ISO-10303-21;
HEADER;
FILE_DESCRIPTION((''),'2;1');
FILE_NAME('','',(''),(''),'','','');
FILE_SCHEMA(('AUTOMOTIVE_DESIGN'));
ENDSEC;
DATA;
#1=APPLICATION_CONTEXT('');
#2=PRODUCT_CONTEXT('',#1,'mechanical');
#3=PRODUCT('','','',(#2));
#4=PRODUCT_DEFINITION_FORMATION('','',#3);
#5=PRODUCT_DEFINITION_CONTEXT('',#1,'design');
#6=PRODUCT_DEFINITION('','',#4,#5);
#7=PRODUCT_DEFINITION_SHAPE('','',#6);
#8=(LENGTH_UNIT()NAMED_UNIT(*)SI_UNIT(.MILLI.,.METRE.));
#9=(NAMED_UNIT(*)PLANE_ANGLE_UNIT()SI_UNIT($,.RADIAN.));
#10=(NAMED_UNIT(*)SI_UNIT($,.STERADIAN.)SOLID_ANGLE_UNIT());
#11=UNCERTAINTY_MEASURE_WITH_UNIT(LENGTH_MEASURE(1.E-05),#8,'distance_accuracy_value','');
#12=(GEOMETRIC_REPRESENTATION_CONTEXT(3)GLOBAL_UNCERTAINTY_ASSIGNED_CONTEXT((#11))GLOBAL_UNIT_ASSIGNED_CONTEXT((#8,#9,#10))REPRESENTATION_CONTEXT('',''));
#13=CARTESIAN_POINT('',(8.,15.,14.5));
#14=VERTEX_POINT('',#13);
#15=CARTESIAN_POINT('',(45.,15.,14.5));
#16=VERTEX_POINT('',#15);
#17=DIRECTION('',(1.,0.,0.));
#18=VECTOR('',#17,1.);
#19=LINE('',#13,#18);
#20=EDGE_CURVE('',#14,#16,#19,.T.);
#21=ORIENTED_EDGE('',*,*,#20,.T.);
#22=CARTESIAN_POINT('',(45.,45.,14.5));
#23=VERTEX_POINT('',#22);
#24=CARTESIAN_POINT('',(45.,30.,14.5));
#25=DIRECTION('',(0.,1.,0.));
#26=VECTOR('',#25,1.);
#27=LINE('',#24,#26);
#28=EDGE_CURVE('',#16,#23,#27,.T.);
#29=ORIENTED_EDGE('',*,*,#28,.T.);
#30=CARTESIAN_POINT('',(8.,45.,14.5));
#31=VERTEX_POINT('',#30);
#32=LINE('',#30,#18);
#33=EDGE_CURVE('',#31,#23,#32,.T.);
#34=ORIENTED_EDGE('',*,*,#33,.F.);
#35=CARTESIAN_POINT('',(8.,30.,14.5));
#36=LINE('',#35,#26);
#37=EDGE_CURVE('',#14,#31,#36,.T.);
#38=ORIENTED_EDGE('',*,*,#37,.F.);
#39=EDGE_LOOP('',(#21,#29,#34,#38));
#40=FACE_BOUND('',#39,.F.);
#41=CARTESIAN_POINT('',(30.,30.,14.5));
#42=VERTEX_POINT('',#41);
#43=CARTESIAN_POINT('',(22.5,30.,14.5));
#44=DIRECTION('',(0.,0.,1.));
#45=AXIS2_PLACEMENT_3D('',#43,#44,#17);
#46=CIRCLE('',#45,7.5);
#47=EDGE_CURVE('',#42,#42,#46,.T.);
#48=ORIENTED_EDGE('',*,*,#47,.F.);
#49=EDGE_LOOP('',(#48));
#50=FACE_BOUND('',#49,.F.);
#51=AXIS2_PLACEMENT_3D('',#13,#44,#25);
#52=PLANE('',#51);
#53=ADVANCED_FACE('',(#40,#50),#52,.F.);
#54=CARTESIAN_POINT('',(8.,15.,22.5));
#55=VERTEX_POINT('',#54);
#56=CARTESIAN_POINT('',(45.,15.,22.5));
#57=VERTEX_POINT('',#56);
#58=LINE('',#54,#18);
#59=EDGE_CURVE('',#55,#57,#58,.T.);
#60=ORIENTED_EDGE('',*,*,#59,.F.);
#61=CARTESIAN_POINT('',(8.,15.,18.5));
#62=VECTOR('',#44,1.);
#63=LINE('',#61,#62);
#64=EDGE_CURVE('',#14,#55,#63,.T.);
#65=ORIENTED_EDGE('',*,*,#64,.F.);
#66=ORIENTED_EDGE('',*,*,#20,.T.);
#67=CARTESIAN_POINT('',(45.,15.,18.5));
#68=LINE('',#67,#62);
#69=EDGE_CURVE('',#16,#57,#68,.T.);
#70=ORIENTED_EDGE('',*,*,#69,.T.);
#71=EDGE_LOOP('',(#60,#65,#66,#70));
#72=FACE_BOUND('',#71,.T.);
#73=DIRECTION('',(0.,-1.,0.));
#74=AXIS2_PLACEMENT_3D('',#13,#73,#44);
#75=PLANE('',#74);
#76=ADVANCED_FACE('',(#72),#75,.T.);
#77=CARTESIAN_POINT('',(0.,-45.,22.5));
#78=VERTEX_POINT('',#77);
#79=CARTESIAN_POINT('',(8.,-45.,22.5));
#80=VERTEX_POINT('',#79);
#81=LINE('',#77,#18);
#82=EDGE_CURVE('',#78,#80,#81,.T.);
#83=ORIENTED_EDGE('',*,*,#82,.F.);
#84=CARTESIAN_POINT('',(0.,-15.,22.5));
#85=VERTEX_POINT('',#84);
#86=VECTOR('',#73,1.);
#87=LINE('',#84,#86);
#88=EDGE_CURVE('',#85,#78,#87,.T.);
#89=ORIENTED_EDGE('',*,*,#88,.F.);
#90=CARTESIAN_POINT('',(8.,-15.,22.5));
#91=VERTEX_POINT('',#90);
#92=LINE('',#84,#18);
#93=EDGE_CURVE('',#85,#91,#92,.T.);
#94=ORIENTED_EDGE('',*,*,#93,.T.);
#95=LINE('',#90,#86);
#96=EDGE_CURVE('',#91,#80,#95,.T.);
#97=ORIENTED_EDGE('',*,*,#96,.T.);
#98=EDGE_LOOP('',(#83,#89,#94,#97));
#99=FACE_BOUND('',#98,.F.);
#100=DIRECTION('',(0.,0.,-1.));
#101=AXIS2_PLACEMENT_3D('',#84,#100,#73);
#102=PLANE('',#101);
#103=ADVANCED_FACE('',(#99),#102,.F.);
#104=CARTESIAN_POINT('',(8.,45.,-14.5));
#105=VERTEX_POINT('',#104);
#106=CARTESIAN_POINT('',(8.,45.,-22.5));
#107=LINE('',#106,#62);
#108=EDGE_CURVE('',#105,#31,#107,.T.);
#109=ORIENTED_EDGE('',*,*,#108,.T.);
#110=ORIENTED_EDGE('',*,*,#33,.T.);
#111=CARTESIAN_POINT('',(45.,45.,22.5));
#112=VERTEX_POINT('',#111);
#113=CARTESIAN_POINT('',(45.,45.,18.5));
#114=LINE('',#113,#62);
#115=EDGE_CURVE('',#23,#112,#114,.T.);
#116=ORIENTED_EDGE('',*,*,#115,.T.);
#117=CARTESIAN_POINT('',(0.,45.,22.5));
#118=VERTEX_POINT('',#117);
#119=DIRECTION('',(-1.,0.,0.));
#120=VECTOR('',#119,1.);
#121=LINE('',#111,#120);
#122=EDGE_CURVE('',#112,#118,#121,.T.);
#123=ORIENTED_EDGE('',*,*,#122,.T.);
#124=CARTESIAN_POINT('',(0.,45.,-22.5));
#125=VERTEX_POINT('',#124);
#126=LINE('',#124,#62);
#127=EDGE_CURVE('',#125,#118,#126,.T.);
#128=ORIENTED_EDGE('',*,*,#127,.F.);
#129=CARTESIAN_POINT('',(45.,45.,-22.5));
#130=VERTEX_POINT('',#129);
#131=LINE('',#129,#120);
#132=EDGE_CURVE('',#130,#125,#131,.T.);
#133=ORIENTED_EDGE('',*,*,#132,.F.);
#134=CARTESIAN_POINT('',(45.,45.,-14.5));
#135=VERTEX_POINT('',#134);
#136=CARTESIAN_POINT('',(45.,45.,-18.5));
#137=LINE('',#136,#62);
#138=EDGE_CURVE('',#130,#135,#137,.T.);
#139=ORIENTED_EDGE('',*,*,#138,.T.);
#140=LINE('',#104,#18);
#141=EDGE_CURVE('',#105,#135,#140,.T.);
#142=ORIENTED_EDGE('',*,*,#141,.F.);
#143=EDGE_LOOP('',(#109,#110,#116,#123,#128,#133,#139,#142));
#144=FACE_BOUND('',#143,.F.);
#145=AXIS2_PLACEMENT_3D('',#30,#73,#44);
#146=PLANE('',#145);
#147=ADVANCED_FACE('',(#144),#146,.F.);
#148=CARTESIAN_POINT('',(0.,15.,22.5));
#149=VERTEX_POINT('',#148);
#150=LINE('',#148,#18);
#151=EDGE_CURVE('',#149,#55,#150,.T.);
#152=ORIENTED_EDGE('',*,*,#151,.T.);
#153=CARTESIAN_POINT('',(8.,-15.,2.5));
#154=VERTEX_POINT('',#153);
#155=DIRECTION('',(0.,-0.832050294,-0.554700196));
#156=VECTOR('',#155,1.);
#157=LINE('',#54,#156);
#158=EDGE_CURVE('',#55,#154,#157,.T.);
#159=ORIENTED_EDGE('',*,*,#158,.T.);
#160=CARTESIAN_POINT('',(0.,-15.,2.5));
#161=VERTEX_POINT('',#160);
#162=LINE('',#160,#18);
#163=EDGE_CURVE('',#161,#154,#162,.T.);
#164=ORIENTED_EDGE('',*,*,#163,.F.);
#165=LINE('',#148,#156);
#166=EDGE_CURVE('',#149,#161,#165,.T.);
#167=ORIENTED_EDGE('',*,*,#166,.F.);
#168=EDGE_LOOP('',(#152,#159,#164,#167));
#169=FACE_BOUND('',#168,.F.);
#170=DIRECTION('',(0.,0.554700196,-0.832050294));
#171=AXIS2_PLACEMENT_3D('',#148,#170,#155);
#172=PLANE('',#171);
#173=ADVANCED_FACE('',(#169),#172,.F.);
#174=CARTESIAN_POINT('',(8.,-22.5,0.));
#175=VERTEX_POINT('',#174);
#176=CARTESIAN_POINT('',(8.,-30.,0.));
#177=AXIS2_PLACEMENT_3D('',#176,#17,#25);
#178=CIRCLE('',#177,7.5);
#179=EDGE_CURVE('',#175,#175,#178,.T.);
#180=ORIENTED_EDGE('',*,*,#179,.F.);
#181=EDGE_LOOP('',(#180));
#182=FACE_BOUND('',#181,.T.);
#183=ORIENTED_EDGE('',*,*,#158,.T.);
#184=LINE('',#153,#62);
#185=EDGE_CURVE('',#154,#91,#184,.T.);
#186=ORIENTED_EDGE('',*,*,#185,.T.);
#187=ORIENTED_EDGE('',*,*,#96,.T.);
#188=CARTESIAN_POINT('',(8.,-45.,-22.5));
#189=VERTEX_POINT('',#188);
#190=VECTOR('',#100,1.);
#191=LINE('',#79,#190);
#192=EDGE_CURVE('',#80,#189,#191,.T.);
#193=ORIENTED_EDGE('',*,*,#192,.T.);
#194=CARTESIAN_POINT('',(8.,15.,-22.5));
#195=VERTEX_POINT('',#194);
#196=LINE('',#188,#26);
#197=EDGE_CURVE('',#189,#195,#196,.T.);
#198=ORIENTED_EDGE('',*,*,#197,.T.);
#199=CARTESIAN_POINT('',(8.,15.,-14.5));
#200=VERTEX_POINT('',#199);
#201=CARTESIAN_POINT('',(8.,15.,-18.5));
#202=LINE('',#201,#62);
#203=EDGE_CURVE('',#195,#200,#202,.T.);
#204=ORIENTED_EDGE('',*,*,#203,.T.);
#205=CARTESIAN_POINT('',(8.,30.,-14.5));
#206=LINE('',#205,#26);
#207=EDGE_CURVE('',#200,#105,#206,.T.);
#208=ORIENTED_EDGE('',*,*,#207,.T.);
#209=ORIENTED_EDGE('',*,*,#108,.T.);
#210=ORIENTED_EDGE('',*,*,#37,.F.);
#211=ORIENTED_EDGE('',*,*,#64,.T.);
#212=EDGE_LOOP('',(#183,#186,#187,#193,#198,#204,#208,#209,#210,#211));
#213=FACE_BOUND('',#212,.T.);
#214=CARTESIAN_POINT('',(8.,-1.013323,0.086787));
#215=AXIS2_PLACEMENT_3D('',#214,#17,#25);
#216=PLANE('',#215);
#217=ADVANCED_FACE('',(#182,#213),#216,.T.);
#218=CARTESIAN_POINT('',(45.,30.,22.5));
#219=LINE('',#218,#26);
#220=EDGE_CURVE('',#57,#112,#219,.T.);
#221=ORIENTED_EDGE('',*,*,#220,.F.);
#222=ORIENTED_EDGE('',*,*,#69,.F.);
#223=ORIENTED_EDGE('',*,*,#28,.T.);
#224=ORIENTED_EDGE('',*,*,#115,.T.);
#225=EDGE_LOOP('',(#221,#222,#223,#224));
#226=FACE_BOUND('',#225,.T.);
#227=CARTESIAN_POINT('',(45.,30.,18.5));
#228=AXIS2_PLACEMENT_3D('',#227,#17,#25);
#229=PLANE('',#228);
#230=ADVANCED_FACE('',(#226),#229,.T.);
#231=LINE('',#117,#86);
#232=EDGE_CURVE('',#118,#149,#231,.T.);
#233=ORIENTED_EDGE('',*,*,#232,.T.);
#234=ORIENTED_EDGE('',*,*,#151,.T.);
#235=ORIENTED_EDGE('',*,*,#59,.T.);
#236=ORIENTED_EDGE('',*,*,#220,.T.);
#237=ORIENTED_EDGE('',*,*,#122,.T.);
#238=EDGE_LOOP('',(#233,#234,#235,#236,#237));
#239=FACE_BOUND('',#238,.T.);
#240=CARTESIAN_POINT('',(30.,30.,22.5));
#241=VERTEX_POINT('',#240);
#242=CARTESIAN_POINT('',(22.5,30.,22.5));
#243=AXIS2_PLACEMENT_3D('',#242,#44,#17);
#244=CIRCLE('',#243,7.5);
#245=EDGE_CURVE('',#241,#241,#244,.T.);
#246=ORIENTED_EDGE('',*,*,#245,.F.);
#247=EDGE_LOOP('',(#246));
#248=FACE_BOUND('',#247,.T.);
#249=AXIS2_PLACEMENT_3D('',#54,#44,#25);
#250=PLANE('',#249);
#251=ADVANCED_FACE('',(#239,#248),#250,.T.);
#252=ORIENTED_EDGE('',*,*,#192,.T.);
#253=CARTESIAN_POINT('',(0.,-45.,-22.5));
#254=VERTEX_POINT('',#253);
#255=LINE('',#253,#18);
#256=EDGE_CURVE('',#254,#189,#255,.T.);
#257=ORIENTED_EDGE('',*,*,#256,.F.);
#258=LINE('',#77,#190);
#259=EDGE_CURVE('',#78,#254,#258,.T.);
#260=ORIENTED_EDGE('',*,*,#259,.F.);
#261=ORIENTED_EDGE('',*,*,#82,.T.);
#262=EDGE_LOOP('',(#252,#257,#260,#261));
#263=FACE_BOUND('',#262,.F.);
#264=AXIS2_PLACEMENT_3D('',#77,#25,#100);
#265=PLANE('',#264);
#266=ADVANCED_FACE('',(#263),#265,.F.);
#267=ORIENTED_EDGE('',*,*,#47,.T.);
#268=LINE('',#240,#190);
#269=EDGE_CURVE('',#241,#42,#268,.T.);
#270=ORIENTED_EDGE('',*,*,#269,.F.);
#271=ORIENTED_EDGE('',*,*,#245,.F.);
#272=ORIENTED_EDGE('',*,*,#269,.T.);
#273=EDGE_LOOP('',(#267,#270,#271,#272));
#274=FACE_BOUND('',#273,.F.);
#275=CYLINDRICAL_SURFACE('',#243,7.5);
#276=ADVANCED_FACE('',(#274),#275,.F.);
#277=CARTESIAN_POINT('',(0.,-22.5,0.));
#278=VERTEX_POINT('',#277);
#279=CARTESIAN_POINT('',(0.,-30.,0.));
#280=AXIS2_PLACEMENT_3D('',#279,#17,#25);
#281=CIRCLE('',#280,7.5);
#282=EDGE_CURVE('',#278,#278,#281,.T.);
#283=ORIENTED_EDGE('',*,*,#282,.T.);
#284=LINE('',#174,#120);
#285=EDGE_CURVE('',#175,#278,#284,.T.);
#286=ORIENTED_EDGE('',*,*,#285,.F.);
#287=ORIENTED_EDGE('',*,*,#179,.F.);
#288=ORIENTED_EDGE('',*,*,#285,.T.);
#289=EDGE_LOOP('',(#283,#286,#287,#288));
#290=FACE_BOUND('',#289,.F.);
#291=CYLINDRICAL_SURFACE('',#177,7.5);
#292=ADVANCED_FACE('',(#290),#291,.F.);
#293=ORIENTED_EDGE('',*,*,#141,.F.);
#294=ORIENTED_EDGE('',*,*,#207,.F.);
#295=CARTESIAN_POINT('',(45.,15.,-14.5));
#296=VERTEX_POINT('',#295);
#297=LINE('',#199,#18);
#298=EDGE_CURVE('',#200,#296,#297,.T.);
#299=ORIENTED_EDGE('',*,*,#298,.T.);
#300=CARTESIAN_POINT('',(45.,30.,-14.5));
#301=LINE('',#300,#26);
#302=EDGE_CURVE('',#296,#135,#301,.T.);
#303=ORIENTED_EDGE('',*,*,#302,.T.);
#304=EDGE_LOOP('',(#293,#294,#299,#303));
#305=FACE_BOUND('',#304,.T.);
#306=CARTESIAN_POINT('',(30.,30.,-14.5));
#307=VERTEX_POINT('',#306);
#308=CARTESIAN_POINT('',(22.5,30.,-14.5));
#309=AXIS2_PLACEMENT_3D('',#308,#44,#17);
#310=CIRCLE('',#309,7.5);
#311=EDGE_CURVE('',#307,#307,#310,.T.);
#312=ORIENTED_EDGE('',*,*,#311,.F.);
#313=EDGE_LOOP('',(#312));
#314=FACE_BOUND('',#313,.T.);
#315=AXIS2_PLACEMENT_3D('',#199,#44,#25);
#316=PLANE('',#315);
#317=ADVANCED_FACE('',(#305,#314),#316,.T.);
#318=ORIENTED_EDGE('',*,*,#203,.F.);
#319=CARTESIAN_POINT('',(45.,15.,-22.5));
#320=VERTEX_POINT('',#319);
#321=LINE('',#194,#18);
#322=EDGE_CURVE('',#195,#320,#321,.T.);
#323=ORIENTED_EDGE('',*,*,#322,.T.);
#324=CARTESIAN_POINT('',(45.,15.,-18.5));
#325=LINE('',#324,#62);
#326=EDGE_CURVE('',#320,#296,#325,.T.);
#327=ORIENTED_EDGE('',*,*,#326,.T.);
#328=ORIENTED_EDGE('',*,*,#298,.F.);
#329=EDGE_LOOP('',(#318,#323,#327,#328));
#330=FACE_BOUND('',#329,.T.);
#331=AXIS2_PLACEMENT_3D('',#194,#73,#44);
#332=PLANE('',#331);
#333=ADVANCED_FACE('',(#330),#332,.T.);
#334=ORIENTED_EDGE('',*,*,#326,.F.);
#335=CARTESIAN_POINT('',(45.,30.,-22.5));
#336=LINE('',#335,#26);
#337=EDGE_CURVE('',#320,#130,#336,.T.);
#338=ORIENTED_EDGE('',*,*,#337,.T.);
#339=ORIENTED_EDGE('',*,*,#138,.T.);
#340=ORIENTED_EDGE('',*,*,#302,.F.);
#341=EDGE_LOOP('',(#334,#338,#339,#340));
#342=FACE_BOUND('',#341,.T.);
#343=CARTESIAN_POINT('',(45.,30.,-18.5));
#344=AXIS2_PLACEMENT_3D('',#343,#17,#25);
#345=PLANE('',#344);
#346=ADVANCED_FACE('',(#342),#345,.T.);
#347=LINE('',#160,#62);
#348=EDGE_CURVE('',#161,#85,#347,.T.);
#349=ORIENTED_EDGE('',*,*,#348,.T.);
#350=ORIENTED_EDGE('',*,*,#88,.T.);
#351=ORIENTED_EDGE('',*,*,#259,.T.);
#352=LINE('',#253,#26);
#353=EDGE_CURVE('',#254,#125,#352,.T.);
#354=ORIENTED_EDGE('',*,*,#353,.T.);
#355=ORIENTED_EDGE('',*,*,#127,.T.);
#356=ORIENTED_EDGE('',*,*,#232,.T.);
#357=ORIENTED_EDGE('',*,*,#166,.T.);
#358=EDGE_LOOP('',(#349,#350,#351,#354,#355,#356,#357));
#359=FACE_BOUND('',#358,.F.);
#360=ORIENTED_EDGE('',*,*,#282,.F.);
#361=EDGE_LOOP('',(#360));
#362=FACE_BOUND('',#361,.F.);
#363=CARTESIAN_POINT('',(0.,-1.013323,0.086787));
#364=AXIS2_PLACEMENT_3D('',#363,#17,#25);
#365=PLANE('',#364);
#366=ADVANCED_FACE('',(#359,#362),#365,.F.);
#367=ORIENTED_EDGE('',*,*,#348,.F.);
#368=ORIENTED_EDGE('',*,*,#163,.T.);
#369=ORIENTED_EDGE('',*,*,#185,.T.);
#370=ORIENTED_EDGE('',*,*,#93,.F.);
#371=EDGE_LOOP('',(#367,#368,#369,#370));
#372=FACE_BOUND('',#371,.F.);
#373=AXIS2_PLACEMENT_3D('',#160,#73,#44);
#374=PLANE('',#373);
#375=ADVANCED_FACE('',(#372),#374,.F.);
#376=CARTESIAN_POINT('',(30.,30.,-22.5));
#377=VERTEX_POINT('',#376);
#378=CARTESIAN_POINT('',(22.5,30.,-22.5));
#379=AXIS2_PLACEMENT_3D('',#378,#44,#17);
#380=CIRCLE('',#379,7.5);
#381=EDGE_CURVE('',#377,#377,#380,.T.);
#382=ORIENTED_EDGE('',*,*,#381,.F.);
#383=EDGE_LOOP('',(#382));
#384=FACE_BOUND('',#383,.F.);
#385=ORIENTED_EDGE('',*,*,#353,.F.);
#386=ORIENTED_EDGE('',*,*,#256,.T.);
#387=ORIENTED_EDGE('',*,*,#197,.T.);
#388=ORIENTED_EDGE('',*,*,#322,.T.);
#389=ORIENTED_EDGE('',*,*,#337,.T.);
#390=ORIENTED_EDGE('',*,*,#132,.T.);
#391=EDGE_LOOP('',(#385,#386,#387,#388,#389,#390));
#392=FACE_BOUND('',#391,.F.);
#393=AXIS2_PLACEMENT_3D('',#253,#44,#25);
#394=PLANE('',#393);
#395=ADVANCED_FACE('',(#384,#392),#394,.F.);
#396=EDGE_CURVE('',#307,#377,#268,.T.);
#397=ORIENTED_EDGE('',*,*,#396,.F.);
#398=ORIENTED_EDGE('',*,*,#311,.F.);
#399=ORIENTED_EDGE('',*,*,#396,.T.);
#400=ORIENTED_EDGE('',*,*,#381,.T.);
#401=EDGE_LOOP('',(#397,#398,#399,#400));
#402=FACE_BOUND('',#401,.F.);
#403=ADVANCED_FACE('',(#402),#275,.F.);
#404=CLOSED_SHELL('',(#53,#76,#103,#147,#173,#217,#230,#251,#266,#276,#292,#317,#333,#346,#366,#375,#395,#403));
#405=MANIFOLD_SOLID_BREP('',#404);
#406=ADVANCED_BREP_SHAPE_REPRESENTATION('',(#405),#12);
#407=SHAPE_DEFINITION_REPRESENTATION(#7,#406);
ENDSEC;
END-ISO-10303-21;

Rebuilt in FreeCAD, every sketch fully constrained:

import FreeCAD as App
import Part
import Sketcher

V = App.Vector

doc = App.newDocument("Part")
body = doc.addObject("PartDesign::Body", "Body")

# Sketch on YZ plane
sketch1 = body.newObject("Sketcher::SketchObject", "Sketch")
sketch1.AttachmentSupport = (doc.getObject("YZ_Plane"), [""])
sketch1.MapMode = "FlatFace"
sketch1.addGeometry(Part.LineSegment(V(45, -22, 0), V(45, 22, 0)), False)
sketch1.addGeometry(Part.LineSegment(V(45, 22, 0), V(15, 22, 0)), False)
sketch1.addGeometry(Part.LineSegment(V(15, 22, 0), V(-15, 2, 0)), False)
sketch1.addGeometry(Part.LineSegment(V(-15, 2, 0), V(-15, 22, 0)), False)
sketch1.addGeometry(Part.LineSegment(V(-15, 22, 0), V(-45, 22, 0)), False)
sketch1.addGeometry(Part.LineSegment(V(-45, 22, 0), V(-45, -22, 0)), False)
sketch1.addGeometry(Part.LineSegment(V(-45, -22, 0), V(45, -22, 0)), False)
sketch1.addConstraint(Sketcher.Constraint("Coincident", 0, 2, 1, 1))
sketch1.addConstraint(Sketcher.Constraint("Coincident", 1, 2, 2, 1))
sketch1.addConstraint(Sketcher.Constraint("Coincident", 2, 2, 3, 1))
sketch1.addConstraint(Sketcher.Constraint("Coincident", 3, 2, 4, 1))
sketch1.addConstraint(Sketcher.Constraint("Coincident", 4, 2, 5, 1))
sketch1.addConstraint(Sketcher.Constraint("Coincident", 5, 2, 6, 1))
sketch1.addConstraint(Sketcher.Constraint("Coincident", 6, 2, 0, 1))
sketch1.addConstraint(Sketcher.Constraint("Vertical", 0))
sketch1.addConstraint(Sketcher.Constraint("Horizontal", 1))
sketch1.addConstraint(Sketcher.Constraint("Vertical", 3))
sketch1.addConstraint(Sketcher.Constraint("Horizontal", 4))
sketch1.addConstraint(Sketcher.Constraint("Vertical", 5))
sketch1.addConstraint(Sketcher.Constraint("Horizontal", 6))
sketch1.addConstraint(Sketcher.Constraint("Symmetric", 0, 2, 5, 2, -1, 1))
sketch1.addConstraint(Sketcher.Constraint("Symmetric", 1, 2, 3, 2, -2))
sketch1.addConstraint(Sketcher.Constraint("DistanceX", 1, 2, 1, 1, 30.0))
sketch1.addConstraint(Sketcher.Constraint("DistanceX", 6, 1, 6, 2, 90.0))
sketch1.addConstraint(Sketcher.Constraint("DistanceY", 0, 1, 0, 2, 45.0))
sketch1.addConstraint(Sketcher.Constraint("DistanceY", 3, 1, 3, 2, 20.0))
pad1 = body.newObject("PartDesign::Pad", "Pad")
pad1.Profile = sketch1
pad1.Length = 8

# Sketch on YZ plane
sketch2 = body.newObject("Sketcher::SketchObject", "Sketch001")
sketch2.AttachmentSupport = (doc.getObject("YZ_Plane"), [""])
sketch2.MapMode = "FlatFace"
sketch2.AttachmentOffset = App.Placement(V(0, 0, 8), App.Rotation())
sketch2.addGeometry(Part.LineSegment(V(15, 22, 0), V(15, 14, 0)), False)
sketch2.addGeometry(Part.LineSegment(V(15, 14, 0), V(45, 14, 0)), False)
sketch2.addGeometry(Part.LineSegment(V(45, 14, 0), V(45, 22, 0)), False)
sketch2.addGeometry(Part.LineSegment(V(45, 22, 0), V(15, 22, 0)), False)
sketch2.addGeometry(Part.LineSegment(V(15, -14, 0), V(15, -22, 0)), False)
sketch2.addGeometry(Part.LineSegment(V(15, -22, 0), V(45, -22, 0)), False)
sketch2.addGeometry(Part.LineSegment(V(45, -22, 0), V(45, -14, 0)), False)
sketch2.addGeometry(Part.LineSegment(V(45, -14, 0), V(15, -14, 0)), False)
sketch2.addConstraint(Sketcher.Constraint("Coincident", 0, 2, 1, 1))
sketch2.addConstraint(Sketcher.Constraint("Coincident", 1, 2, 2, 1))
sketch2.addConstraint(Sketcher.Constraint("Coincident", 2, 2, 3, 1))
sketch2.addConstraint(Sketcher.Constraint("Coincident", 3, 2, 0, 1))
sketch2.addConstraint(Sketcher.Constraint("Coincident", 4, 2, 5, 1))
sketch2.addConstraint(Sketcher.Constraint("Coincident", 5, 2, 6, 1))
sketch2.addConstraint(Sketcher.Constraint("Coincident", 6, 2, 7, 1))
sketch2.addConstraint(Sketcher.Constraint("Coincident", 7, 2, 4, 1))
sketch2.addConstraint(Sketcher.Constraint("Vertical", 0))
sketch2.addConstraint(Sketcher.Constraint("Horizontal", 1))
sketch2.addConstraint(Sketcher.Constraint("Vertical", 2))
sketch2.addConstraint(Sketcher.Constraint("Horizontal", 3))
sketch2.addConstraint(Sketcher.Constraint("Vertical", 4))
sketch2.addConstraint(Sketcher.Constraint("Horizontal", 5))
sketch2.addConstraint(Sketcher.Constraint("Vertical", 6))
sketch2.addConstraint(Sketcher.Constraint("Horizontal", 7))
sketch2.addConstraint(Sketcher.Constraint("Symmetric", 3, 2, 4, 2, -1))
sketch2.addConstraint(Sketcher.Constraint("Symmetric", 1, 2, 6, 2, -1))
sketch2.addConstraint(Sketcher.Constraint("DistanceX", 1, 1, 1, 2, 30.0))
sketch2.addConstraint(Sketcher.Constraint("DistanceY", 0, 2, 0, 1, 8.0))
sketch2.addConstraint(Sketcher.Constraint("DistanceX", -1, 1, 0, 2, 15.0))
sketch2.addConstraint(Sketcher.Constraint("DistanceY", 4, 2, 0, 2, 37.0))
pad2 = body.newObject("PartDesign::Pad", "Pad001")
pad2.Profile = sketch2
pad2.Length = 37

# Sketch on XY plane
sketch3 = body.newObject("Sketcher::SketchObject", "Sketch002")
sketch3.AttachmentSupport = (doc.getObject("XY_Plane"), [""])
sketch3.MapMode = "FlatFace"
sketch3.AttachmentOffset = App.Placement(V(0, 0, 22.5), App.Rotation())
sketch3.addGeometry(Part.Circle(V(22, 30, 0), V(0, 0, 1), 8), False)
sketch3.addConstraint(Sketcher.Constraint("Diameter", 0, 15.0))
sketch3.addConstraint(Sketcher.Constraint("DistanceY", -1, 1, 0, 3, 30.0))
sketch3.addConstraint(Sketcher.Constraint("DistanceX", -1, 1, 0, 3, 22.5))
pocket1 = body.newObject("PartDesign::Pocket", "Pocket")
pocket1.Profile = sketch3
pocket1.Length = 45

# Sketch on YZ plane
sketch4 = body.newObject("Sketcher::SketchObject", "Sketch003")
sketch4.AttachmentSupport = (doc.getObject("YZ_Plane"), [""])
sketch4.MapMode = "FlatFace"
sketch4.AttachmentOffset = App.Placement(V(0, 0, 8), App.Rotation())
sketch4.addGeometry(Part.Circle(V(-30, 0, 0), V(0, 0, 1), 8), False)
sketch4.addConstraint(Sketcher.Constraint("PointOnObject", 0, 3, -1))
sketch4.addConstraint(Sketcher.Constraint("Diameter", 0, 15.0))
sketch4.addConstraint(Sketcher.Constraint("DistanceX", 0, 3, -1, 1, 30.0))
pocket2 = body.newObject("PartDesign::Pocket", "Pocket001")
pocket2.Profile = sketch4
pocket2.Length = 25

doc.recompute()
